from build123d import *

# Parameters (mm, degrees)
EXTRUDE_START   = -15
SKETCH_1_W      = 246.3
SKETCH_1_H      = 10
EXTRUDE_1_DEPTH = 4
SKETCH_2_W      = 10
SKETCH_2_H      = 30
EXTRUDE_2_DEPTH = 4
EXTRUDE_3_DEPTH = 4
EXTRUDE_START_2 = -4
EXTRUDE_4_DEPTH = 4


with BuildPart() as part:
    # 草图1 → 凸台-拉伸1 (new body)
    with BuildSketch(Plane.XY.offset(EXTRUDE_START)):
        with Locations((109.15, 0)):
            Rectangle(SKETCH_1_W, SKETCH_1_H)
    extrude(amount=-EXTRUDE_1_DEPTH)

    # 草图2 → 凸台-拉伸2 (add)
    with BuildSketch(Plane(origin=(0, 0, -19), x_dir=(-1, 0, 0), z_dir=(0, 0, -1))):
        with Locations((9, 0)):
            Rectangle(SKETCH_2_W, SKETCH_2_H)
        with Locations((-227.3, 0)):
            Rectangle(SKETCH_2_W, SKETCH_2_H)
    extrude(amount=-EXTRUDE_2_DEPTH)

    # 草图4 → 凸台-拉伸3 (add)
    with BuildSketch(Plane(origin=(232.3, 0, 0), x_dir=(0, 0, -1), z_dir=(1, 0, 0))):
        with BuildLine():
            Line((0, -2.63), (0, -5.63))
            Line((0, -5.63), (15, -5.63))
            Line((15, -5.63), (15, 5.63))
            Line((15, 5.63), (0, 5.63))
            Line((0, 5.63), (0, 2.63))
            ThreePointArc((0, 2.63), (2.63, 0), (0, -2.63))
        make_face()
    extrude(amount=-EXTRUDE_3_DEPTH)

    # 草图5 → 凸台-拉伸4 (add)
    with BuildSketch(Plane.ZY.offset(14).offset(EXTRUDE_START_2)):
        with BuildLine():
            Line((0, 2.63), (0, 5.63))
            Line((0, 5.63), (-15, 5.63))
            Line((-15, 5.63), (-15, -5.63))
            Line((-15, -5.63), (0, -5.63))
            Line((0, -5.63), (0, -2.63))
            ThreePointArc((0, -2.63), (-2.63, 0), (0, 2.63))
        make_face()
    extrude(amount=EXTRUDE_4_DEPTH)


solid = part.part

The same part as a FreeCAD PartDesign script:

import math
import FreeCAD as App
import Part
import Sketcher

V = App.Vector
Q = App.Units.Quantity

doc = App.newDocument("Part")
params = doc.addObject("Spreadsheet::Sheet", "Params")
for row, (alias, value) in enumerate([
    ("sketch1_height", "10 mm"),
    ("sketch1_width", "246.3 mm"),
    ("pad1_length", "4 mm"),
    ("sketch2_width", "10 mm"),
    ("sketch2_height", "30 mm"),
    ("pad2_length", "4 mm"),
    ("sketch3_width", "3 mm"),
    ("sketch3_height", "15 mm"),
    ("sketch3_radius", "2.63 mm"),
    ("pad3_length", "4 mm"),
    ("sketch4_width", "3 mm"),
    ("sketch4_height", "15 mm"),
    ("sketch4_radius", "2.63 mm"),
    ("pad4_length", "4 mm"),
], start=1):
    params.set(f"A{row}", alias)
    params.set(f"B{row}", "=" + value)
    params.setAlias(f"B{row}", alias)

body = doc.addObject("PartDesign::Body", "Body")

# Sketch on XY plane
sketch1 = doc.addObject("Sketcher::SketchObject", "Sketch")
body.addObject(sketch1)
sketch1.AttachmentSupport = (doc.XY_Plane, [""])
sketch1.MapMode = "FlatFace"
sketch1.AttachmentOffset = App.Placement(V(0, 0, -15), App.Rotation())
sketch1.addGeometry(Part.LineSegment(V(-14, 5, 0), V(-14, -5, 0)), False)
sketch1.addGeometry(Part.LineSegment(V(-14, -5, 0), V(232, -5, 0)), False)
sketch1.addGeometry(Part.LineSegment(V(232, -5, 0), V(232, 5, 0)), False)
sketch1.addGeometry(Part.LineSegment(V(232, 5, 0), V(-14, 5, 0)), False)
sketch1.addConstraint(Sketcher.Constraint("Coincident", 0, 2, 1, 1))
sketch1.addConstraint(Sketcher.Constraint("Coincident", 1, 2, 2, 1))
sketch1.addConstraint(Sketcher.Constraint("Coincident", 2, 2, 3, 1))
sketch1.addConstraint(Sketcher.Constraint("Coincident", 3, 2, 0, 1))
sketch1.addConstraint(Sketcher.Constraint("Vertical", 0))
sketch1.addConstraint(Sketcher.Constraint("Horizontal", 1))
sketch1.addConstraint(Sketcher.Constraint("Vertical", 2))
sketch1.addConstraint(Sketcher.Constraint("Horizontal", 3))
sketch1.addConstraint(Sketcher.Constraint("DistanceY", 0, 2, 0, 1, Q("10 mm")))
sketch1.addConstraint(Sketcher.Constraint("DistanceX", 1, 1, 1, 2, Q("246.3 mm")))
sketch1.addConstraint(Sketcher.Constraint("DistanceX", 0, 2, -1, 1, Q("14 mm")))
sketch1.addConstraint(Sketcher.Constraint("DistanceY", 0, 2, -1, 1, Q("5 mm")))
sketch1.setExpression("Constraints[8]", "Params.sketch1_height")
sketch1.setExpression("Constraints[9]", "Params.sketch1_width")
pad1 = doc.addObject("PartDesign::Pad", "Pad")
body.addObject(pad1)
pad1.Profile = sketch1
pad1.setExpression("Length", "Params.pad1_length")
pad1.Reversed = True

# Sketch on XY plane
sketch2 = doc.addObject("Sketcher::SketchObject", "Sketch001")
body.addObject(sketch2)
sketch2.AttachmentSupport = (doc.XY_Plane, [""])
sketch2.MapMode = "FlatFace"
sketch2.AttachmentOffset = App.Placement(V(0, 0, -19), App.Rotation())
sketch2.addGeometry(Part.LineSegment(V(-4, 15, 0), V(-4, -15, 0)), False)
sketch2.addGeometry(Part.LineSegment(V(-4, -15, 0), V(-14, -15, 0)), False)
sketch2.addGeometry(Part.LineSegment(V(-14, -15, 0), V(-14, 15, 0)), False)
sketch2.addGeometry(Part.LineSegment(V(-14, 15, 0), V(-4, 15, 0)), False)
sketch2.addGeometry(Part.LineSegment(V(232, 15, 0), V(232, -15, 0)), False)
sketch2.addGeometry(Part.LineSegment(V(232, -15, 0), V(222, -15, 0)), False)
sketch2.addGeometry(Part.LineSegment(V(222, -15, 0), V(222, 15, 0)), False)
sketch2.addGeometry(Part.LineSegment(V(222, 15, 0), V(232, 15, 0)), False)
sketch2.addConstraint(Sketcher.Constraint("Coincident", 0, 2, 1, 1))
sketch2.addConstraint(Sketcher.Constraint("Coincident", 1, 2, 2, 1))
sketch2.addConstraint(Sketcher.Constraint("Coincident", 2, 2, 3, 1))
sketch2.addConstraint(Sketcher.Constraint("Coincident", 3, 2, 0, 1))
sketch2.addConstraint(Sketcher.Constraint("Coincident", 4, 2, 5, 1))
sketch2.addConstraint(Sketcher.Constraint("Coincident", 5, 2, 6, 1))
sketch2.addConstraint(Sketcher.Constraint("Coincident", 6, 2, 7, 1))
sketch2.addConstraint(Sketcher.Constraint("Coincident", 7, 2, 4, 1))
sketch2.addConstraint(Sketcher.Constraint("Vertical", 0))
sketch2.addConstraint(Sketcher.Constraint("Horizontal", 1))
sketch2.addConstraint(Sketcher.Constraint("Vertical", 2))
sketch2.addConstraint(Sketcher.Constraint("Horizontal", 3))
sketch2.addConstraint(Sketcher.Constraint("Vertical", 4))
sketch2.addConstraint(Sketcher.Constraint("Horizontal", 5))
sketch2.addConstraint(Sketcher.Constraint("Vertical", 6))
sketch2.addConstraint(Sketcher.Constraint("Horizontal", 7))
sketch2.addConstraint(Sketcher.Constraint("Horizontal", 1, 2, 4, 2))
sketch2.addConstraint(Sketcher.Constraint("Horizontal", 3, 2, 6, 2))
sketch2.addConstraint(Sketcher.Constraint("Equal", 3, 5))
sketch2.addConstraint(Sketcher.Constraint("DistanceX", 1, 2, 1, 1, Q("10 mm")))
sketch2.addConstraint(Sketcher.Constraint("DistanceY", 0, 2, 0, 1, Q("30 mm")))
sketch2.addConstraint(Sketcher.Constraint("DistanceX", 0, 2, -1, 1, Q("4 mm")))
sketch2.addConstraint(Sketcher.Constraint("DistanceY", 0, 2, -1, 1, Q("15 mm")))
sketch2.addConstraint(Sketcher.Constraint("DistanceX", -1, 1, 4, 2, Q("232.3 mm")))
sketch2.setExpression("Constraints[19]", "Params.sketch2_width")
sketch2.setExpression("Constraints[20]", "Params.sketch2_height")
pad2 = doc.addObject("PartDesign::Pad", "Pad001")
body.addObject(pad2)
pad2.Profile = sketch2
pad2.setExpression("Length", "Params.pad2_length")

# Sketch on YZ plane
sketch3 = doc.addObject("Sketcher::SketchObject", "Sketch002")
body.addObject(sketch3)
sketch3.AttachmentSupport = (doc.YZ_Plane, [""])
sketch3.MapMode = "FlatFace"
sketch3.AttachmentOffset = App.Placement(V(0, 0, 232.3), App.Rotation())
sketch3.addGeometry(Part.LineSegment(V(-2.6, 0, 0), V(-5.6, 0, 0)), False)
sketch3.addGeometry(Part.LineSegment(V(-5.6, 0, 0), V(-5.6, -15, 0)), False)
sketch3.addGeometry(Part.LineSegment(V(-5.6, -15, 0), V(5.6, -15, 0)), False)
sketch3.addGeometry(Part.LineSegment(V(5.6, -15, 0), V(5.6, 0, 0)), False)
sketch3.addGeometry(Part.LineSegment(V(5.6, 0, 0), V(2.6, 0, 0)), False)
sketch3.addGeometry(Part.ArcOfCircle(Part.Circle(V(0, 0, 0), V(0, 0, 1), 2.6), math.radians(180), math.radians(360)), False)
sketch3.addConstraint(Sketcher.Constraint("Coincident", 0, 2, 1, 1))
sketch3.addConstraint(Sketcher.Constraint("Coincident", 1, 2, 2, 1))
sketch3.addConstraint(Sketcher.Constraint("Coincident", 2, 2, 3, 1))
sketch3.addConstraint(Sketcher.Constraint("Coincident", 3, 2, 4, 1))
sketch3.addConstraint(Sketcher.Constraint("Coincident", 4, 2, 5, 2))
sketch3.addConstraint(Sketcher.Constraint("Coincident", 5, 1, 0, 1))
sketch3.addConstraint(Sketcher.Constraint("Horizontal", 0))
sketch3.addConstraint(Sketcher.Constraint("Vertical", 1))
sketch3.addConstraint(Sketcher.Constraint("Horizontal", 2))
sketch3.addConstraint(Sketcher.Constraint("Vertical", 3))
sketch3.addConstraint(Sketcher.Constraint("Horizontal", 4))
sketch3.addConstraint(Sketcher.Constraint("Coincident", 5, 3, -1, 1))
sketch3.addConstraint(Sketcher.Constraint("Symmetric", 0, 2, 3, 2, -1, 1))
sketch3.addConstraint(Sketcher.Constraint("PointOnObject", 0, 2, -1))
sketch3.addConstraint(Sketcher.Constraint("DistanceX", 0, 2, 0, 1, Q("3 mm")))
sketch3.addConstraint(Sketcher.Constraint("DistanceY", 1, 2, 1, 1, Q("15 mm")))
sketch3.addConstraint(Sketcher.Constraint("Radius", 5, Q("2.63 mm")))
sketch3.setExpression("Constraints[14]", "Params.sketch3_width")
sketch3.setExpression("Constraints[15]", "Params.sketch3_height")
sketch3.setExpression("Constraints[16]", "Params.sketch3_radius")
pad3 = doc.addObject("PartDesign::Pad", "Pad002")
body.addObject(pad3)
pad3.Profile = sketch3
pad3.setExpression("Length", "Params.pad3_length")
pad3.Reversed = True

# Sketch on YZ plane
sketch4 = doc.addObject("Sketcher::SketchObject", "Sketch003")
body.addObject(sketch4)
sketch4.AttachmentSupport = (doc.YZ_Plane, [""])
sketch4.MapMode = "FlatFace"
sketch4.AttachmentOffset = App.Placement(V(0, 0, -10), App.Rotation())
sketch4.addGeometry(Part.LineSegment(V(2.6, 0, 0), V(5.6, 0, 0)), False)
sketch4.addGeometry(Part.LineSegment(V(5.6, 0, 0), V(5.6, -15, 0)), False)
sketch4.addGeometry(Part.LineSegment(V(5.6, -15, 0), V(-5.6, -15, 0)), False)
sketch4.addGeometry(Part.LineSegment(V(-5.6, -15, 0), V(-5.6, 0, 0)), False)
sketch4.addGeometry(Part.LineSegment(V(-5.6, 0, 0), V(-2.6, 0, 0)), False)
sketch4.addGeometry(Part.ArcOfCircle(Part.Circle(V(0, 0, 0), V(0, 0, 1), 2.6), math.radians(180), math.radians(360)), False)
sketch4.addConstraint(Sketcher.Constraint("Coincident", 0, 2, 1, 1))
sketch4.addConstraint(Sketcher.Constraint("Coincident", 1, 2, 2, 1))
sketch4.addConstraint(Sketcher.Constraint("Coincident", 2, 2, 3, 1))
sketch4.addConstraint(Sketcher.Constraint("Coincident", 3, 2, 4, 1))
sketch4.addConstraint(Sketcher.Constraint("Coincident", 4, 2, 5, 1))
sketch4.addConstraint(Sketcher.Constraint("Coincident", 5, 2, 0, 1))
sketch4.addConstraint(Sketcher.Constraint("Horizontal", 0))
sketch4.addConstraint(Sketcher.Constraint("Vertical", 1))
sketch4.addConstraint(Sketcher.Constraint("Horizontal", 2))
sketch4.addConstraint(Sketcher.Constraint("Vertical", 3))
sketch4.addConstraint(Sketcher.Constraint("Horizontal", 4))
sketch4.addConstraint(Sketcher.Constraint("Coincident", 5, 3, -1, 1))
sketch4.addConstraint(Sketcher.Constraint("Symmetric", 0, 2, 3, 2, -1, 1))
sketch4.addConstraint(Sketcher.Constraint("PointOnObject", 0, 2, -1))
sketch4.addConstraint(Sketcher.Constraint("DistanceX", 0, 1, 0, 2, Q("3 mm")))
sketch4.addConstraint(Sketcher.Constraint("DistanceY", 1, 2, 1, 1, Q("15 mm")))
sketch4.addConstraint(Sketcher.Constraint("Radius", 5, Q("2.63 mm")))
sketch4.setExpression("Constraints[14]", "Params.sketch4_width")
sketch4.setExpression("Constraints[15]", "Params.sketch4_height")
sketch4.setExpression("Constraints[16]", "Params.sketch4_radius")
pad4 = doc.addObject("PartDesign::Pad", "Pad003")
body.addObject(pad4)
pad4.Profile = sketch4
pad4.setExpression("Length", "Params.pad4_length")
pad4.Reversed = True

doc.recompute()
